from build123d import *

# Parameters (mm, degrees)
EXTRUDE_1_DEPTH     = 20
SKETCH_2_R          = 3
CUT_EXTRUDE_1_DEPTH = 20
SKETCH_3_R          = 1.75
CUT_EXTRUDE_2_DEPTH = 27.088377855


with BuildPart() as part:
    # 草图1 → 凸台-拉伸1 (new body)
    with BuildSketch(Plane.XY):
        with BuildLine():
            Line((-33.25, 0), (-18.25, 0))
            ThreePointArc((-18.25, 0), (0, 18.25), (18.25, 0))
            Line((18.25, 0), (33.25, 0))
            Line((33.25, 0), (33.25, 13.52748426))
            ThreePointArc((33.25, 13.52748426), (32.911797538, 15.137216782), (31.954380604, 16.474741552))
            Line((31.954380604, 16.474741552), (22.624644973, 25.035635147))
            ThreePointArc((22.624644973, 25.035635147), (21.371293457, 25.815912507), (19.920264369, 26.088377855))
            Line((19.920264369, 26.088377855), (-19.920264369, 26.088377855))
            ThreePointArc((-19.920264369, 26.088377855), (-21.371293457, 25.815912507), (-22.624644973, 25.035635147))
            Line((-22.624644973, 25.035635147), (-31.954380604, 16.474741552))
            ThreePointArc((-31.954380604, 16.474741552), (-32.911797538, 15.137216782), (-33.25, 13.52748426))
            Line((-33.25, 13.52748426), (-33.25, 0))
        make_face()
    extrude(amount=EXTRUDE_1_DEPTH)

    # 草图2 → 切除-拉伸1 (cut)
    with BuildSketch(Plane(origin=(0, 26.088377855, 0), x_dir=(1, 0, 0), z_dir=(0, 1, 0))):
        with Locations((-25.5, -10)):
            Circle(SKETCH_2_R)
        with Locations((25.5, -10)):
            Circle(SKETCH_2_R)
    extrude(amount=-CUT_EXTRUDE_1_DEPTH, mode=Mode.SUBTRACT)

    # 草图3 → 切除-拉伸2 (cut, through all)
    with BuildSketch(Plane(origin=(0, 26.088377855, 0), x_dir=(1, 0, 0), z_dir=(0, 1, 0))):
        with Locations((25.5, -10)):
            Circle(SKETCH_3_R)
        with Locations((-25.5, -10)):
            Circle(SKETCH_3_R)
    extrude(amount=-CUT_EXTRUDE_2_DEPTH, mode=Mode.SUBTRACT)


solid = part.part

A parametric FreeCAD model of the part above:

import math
import FreeCAD as App
import Part
import Sketcher
Q = App.Units.Quantity

doc = App.newDocument("Part")
params = doc.addObject("Spreadsheet::Sheet", "Params")
for row, (alias, value) in enumerate([
    ("sketch1_radius", "4 mm"),
    ("sketch1_width", "15 mm"),
    ("sketch1_radius2", "18.25 mm"),
    ("pad1_length", "20 mm"),
    ("sketch2_diameter", "6 mm"),
    ("pocket1_length", "20 mm"),
    ("sketch3_diameter", "3.5 mm"),
], start=1):
    params.set(f"A{row}", alias)
    params.set(f"B{row}", "=" + value)
    params.setAlias(f"B{row}", alias)

body = doc.addObject("PartDesign::Body", "Body")

sketch1 = body.newObject("Sketcher::SketchObject", "Sketch")
sketch1.AttachmentSupport = (doc.getObject("XY_Plane"), [""])
sketch1.MapMode = "FlatFace"
sketch1.addGeometry([
    Part.LineSegment(App.Vector(-33.2, 0, 0), App.Vector(-18.2, 0, 0)),
    Part.ArcOfCircle(Part.Circle(App.Vector(0, 0, 0), App.Vector(0, 0, 1), 18.2), math.radians(0), math.radians(180)),
    Part.LineSegment(App.Vector(18.2, 0, 0), App.Vector(33.2, 0, 0)),
    Part.LineSegment(App.Vector(33.2, 0, 0), App.Vector(33.2, 13.5, 0)),
    Part.ArcOfCircle(Part.Circle(App.Vector(29.3, 13.5, 0), App.Vector(0, 0, 1), 4), math.radians(0), math.radians(47)),
    Part.LineSegment(App.Vector(32, 16.5, 0), App.Vector(22.6, 25, 0)),
    Part.ArcOfCircle(Part.Circle(App.Vector(19.9, 22.1, 0), App.Vector(0, 0, 1), 4), math.radians(47), math.radians(90)),
    Part.LineSegment(App.Vector(19.9, 26.1, 0), App.Vector(-19.9, 26.1, 0)),
    Part.ArcOfCircle(Part.Circle(App.Vector(-19.9, 22.1, 0), App.Vector(0, 0, 1), 4), math.radians(90), math.radians(133)),
    Part.LineSegment(App.Vector(-22.6, 25, 0), App.Vector(-32, 16.5, 0)),
    Part.ArcOfCircle(Part.Circle(App.Vector(-29.3, 13.5, 0), App.Vector(0, 0, 1), 4), math.radians(133), math.radians(180)),
    Part.LineSegment(App.Vector(-33.2, 13.5, 0), App.Vector(-33.2, 0, 0)),
], False)
sketch1.addConstraint([
    Sketcher.Constraint("Coincident", 0, 2, 1, 2),
    Sketcher.Constraint("Coincident", 1, 1, 2, 1),
    Sketcher.Constraint("Coincident", 2, 2, 3, 1),
    Sketcher.Constraint("Tangent", 3, 2, 4, 1),
    Sketcher.Constraint("Tangent", 4, 2, 5, 1),
    Sketcher.Constraint("Tangent", 5, 2, 6, 1),
    Sketcher.Constraint("Tangent", 6, 2, 7, 1),
    Sketcher.Constraint("Tangent", 7, 2, 8, 1),
    Sketcher.Constraint("Tangent", 8, 2, 9, 1),
    Sketcher.Constraint("Tangent", 9, 2, 10, 1),
    Sketcher.Constraint("Tangent", 10, 2, 11, 1),
    Sketcher.Constraint("Coincident", 11, 2, 0, 1),
    Sketcher.Constraint("Horizontal", 0),
    Sketcher.Constraint("Horizontal", 2),
    Sketcher.Constraint("Vertical", 3),
    Sketcher.Constraint("Horizontal", 7),
    Sketcher.Constraint("Vertical", 11),
    Sketcher.Constraint("Coincident", 1, 3, -1, 1),
    Sketcher.Constraint("Equal", 4, 6),
    Sketcher.Constraint("Equal", 6, 8),
    Sketcher.Constraint("Equal", 8, 10),
    Sketcher.Constraint("Symmetric", 2, 2, 11, 2, -1, 1),
    Sketcher.Constraint("Symmetric", 5, 2, 8, 2, -2),
    Sketcher.Constraint("PointOnObject", 0, 2, -1),
    Sketcher.Constraint("Radius", 4, Q("4 mm")),
    Sketcher.Constraint("DistanceX", 0, 1, 0, 2, Q("15 mm")),
    Sketcher.Constraint("Radius", 1, Q("18.25 mm")),
    Sketcher.Constraint("DistanceX", 7, 2, 7, 1, Q("39.840529 mm")),
    Sketcher.Constraint("Distance", 5, Q("12.662261 mm")),
    Sketcher.Constraint("DistanceY", 3, 1, 3, 2, Q("13.527484 mm")),
])
sketch1.setExpression("Constraints[24]", "Params.sketch1_radius")
sketch1.setExpression("Constraints[25]", "Params.sketch1_width")
sketch1.setExpression("Constraints[26]", "Params.sketch1_radius2")
pad1 = body.newObject("PartDesign::Pad", "Pad")
pad1.Profile = sketch1
pad1.setExpression("Length", "Params.pad1_length")

sketch2 = body.newObject("Sketcher::SketchObject", "Sketch001")
sketch2.AttachmentSupport = (doc.getObject("XZ_Plane"), [""])
sketch2.MapMode = "FlatFace"
sketch2.AttachmentOffset = App.Placement(App.Vector(0, 0, -26.088378), App.Rotation())
sketch2.addGeometry([
    Part.Circle(App.Vector(-25.5, 10, 0), App.Vector(0, 0, 1), 3),
    Part.Circle(App.Vector(25.5, 10, 0), App.Vector(0, 0, 1), 3),
], False)
sketch2.addConstraint([
    Sketcher.Constraint("Equal", 0, 1),
    Sketcher.Constraint("Symmetric", 0, 3, 1, 3, -2),
    Sketcher.Constraint("Diameter", 0, Q("6 mm")),
    Sketcher.Constraint("DistanceY", -1, 1, 0, 3, Q("10 mm")),
    Sketcher.Constraint("DistanceX", 0, 3, 1, 3, Q("51 mm")),
])
sketch2.setExpression("Constraints[2]", "Params.sketch2_diameter")
pocket1 = body.newObject("PartDesign::Pocket", "Pocket")
pocket1.Profile = sketch2
pocket1.setExpression("Length", "Params.pocket1_length")
pocket1.Reversed = True

sketch3 = body.newObject("Sketcher::SketchObject", "Sketch002")
sketch3.AttachmentSupport = (doc.getObject("XZ_Plane"), [""])
sketch3.MapMode = "FlatFace"
sketch3.AttachmentOffset = App.Placement(App.Vector(0, 0, -26.088378), App.Rotation())
sketch3.addGeometry([
    Part.Circle(App.Vector(25.5, 10, 0), App.Vector(0, 0, 1), 1.8),
    Part.Circle(App.Vector(-25.5, 10, 0), App.Vector(0, 0, 1), 1.8),
], False)
sketch3.addConstraint([
    Sketcher.Constraint("Equal", 0, 1),
    Sketcher.Constraint("Symmetric", 0, 3, 1, 3, -2),
    Sketcher.Constraint("Diameter", 0, Q("3.5 mm")),
    Sketcher.Constraint("DistanceY", -1, 1, 0, 3, Q("10 mm")),
    Sketcher.Constraint("DistanceX", 1, 3, 0, 3, Q("51 mm")),
])
sketch3.setExpression("Constraints[2]", "Params.sketch3_diameter")
pocket2 = body.newObject("PartDesign::Pocket", "Pocket001")
pocket2.Profile = sketch3
pocket2.Type = "ThroughAll"
pocket2.Reversed = True

doc.recompute()
